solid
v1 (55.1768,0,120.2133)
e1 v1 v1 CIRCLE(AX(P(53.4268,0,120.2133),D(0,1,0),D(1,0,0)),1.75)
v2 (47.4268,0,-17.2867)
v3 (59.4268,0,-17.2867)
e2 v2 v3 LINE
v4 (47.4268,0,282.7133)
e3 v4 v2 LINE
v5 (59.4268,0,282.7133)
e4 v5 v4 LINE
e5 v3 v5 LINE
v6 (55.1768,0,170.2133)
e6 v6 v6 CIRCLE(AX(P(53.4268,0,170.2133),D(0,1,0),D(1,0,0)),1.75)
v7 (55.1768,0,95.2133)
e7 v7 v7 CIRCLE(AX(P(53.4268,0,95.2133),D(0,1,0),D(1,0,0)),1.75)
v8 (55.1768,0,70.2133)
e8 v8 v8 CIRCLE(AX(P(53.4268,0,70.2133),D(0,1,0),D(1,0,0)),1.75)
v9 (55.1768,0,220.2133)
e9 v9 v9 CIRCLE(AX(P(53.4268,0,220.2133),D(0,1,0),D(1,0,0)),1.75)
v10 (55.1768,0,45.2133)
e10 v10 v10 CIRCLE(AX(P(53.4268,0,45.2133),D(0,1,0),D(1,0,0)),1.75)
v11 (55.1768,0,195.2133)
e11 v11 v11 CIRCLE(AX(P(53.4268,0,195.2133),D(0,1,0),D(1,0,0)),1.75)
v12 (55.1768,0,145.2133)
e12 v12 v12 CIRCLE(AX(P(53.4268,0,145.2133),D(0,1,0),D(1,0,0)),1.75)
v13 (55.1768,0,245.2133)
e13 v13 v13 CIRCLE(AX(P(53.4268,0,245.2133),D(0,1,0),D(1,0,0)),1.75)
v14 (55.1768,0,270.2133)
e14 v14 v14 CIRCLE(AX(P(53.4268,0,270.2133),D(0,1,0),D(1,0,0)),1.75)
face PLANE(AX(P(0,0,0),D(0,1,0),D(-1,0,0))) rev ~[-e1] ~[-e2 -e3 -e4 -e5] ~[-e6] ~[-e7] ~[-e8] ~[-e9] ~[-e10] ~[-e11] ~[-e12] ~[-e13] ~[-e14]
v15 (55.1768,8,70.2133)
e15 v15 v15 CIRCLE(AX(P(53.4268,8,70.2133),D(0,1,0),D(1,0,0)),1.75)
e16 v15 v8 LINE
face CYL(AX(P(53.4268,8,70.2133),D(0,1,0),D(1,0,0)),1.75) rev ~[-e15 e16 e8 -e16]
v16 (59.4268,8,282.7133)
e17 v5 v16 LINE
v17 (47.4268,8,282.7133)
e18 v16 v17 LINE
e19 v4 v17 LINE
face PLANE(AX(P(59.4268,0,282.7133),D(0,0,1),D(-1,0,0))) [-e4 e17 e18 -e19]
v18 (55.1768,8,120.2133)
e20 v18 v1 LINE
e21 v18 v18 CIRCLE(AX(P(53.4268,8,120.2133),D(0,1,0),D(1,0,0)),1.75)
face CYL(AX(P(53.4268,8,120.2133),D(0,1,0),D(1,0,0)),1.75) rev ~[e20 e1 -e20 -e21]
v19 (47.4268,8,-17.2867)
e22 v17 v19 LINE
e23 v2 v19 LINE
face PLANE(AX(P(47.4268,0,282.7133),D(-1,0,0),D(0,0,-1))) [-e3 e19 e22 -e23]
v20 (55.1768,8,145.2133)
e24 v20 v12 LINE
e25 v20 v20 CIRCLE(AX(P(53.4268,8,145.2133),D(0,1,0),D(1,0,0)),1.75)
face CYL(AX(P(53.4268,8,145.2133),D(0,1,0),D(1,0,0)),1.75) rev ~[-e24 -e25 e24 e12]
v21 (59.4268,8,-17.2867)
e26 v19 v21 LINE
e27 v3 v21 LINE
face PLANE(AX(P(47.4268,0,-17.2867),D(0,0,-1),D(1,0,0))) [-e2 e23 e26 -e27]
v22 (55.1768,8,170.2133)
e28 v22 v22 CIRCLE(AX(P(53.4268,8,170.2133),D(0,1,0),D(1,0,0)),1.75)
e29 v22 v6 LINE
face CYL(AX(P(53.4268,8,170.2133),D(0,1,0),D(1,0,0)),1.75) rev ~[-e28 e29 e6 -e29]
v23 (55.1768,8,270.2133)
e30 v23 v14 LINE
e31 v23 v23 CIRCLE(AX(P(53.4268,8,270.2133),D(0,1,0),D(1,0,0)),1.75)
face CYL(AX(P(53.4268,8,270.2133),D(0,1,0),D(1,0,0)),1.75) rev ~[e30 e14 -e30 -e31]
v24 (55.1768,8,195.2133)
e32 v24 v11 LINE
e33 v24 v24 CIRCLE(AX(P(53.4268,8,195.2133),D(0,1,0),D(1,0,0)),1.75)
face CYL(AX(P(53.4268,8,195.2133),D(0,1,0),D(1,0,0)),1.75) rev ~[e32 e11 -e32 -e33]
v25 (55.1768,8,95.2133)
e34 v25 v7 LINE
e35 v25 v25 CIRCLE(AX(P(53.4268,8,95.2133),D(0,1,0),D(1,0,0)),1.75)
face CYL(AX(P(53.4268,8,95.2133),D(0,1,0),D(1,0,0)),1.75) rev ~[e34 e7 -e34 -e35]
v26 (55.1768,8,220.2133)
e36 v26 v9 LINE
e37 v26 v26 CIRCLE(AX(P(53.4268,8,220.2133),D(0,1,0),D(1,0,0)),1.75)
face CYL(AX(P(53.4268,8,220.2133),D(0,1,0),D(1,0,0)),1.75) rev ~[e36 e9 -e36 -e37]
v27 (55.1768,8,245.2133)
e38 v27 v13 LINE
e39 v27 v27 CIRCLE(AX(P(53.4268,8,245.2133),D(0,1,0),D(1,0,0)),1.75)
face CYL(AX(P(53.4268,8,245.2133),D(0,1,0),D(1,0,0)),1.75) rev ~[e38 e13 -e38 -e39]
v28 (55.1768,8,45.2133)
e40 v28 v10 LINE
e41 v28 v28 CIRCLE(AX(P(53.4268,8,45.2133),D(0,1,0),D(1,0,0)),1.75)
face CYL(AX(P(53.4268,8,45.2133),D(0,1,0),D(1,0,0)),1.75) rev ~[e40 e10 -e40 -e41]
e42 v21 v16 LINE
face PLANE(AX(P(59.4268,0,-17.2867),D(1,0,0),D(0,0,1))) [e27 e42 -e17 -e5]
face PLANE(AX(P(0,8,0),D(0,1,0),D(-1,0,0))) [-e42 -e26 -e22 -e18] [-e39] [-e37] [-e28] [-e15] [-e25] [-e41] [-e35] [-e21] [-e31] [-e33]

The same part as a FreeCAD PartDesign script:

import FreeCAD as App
import Part
import Sketcher


def add_polygon(sketch, points):
    """Adds a closed chain of lines whose ends are joined by coincident constraints."""
    first, n = sketch.GeometryCount, len(points)
    for a, b in zip(points, points[1:] + points[:1]):
        sketch.addGeometry(Part.LineSegment(App.Vector(*a, 0), App.Vector(*b, 0)), False)
    for i in range(n):
        sketch.addConstraint(Sketcher.Constraint("Coincident", first + i, 2, first + (i + 1) % n, 1))

doc = App.newDocument("Part")
body = doc.addObject("PartDesign::Body", "Body")

# Sketch on XZ plane
sketch1 = body.newObject("Sketcher::SketchObject", "Sketch")
sketch1.AttachmentSupport = (doc.getObject("XZ_Plane"), [""])
sketch1.MapMode = "FlatFace"
add_polygon(sketch1, [(59, -17), (47, -17), (47, 283), (59, 283)])  # lines 0-3
sketch1.addConstraint(Sketcher.Constraint("Horizontal", 0))
sketch1.addConstraint(Sketcher.Constraint("Vertical", 1))
sketch1.addConstraint(Sketcher.Constraint("Horizontal", 2))
sketch1.addConstraint(Sketcher.Constraint("Vertical", 3))
sketch1.addConstraint(Sketcher.Constraint("DistanceX", 0, 2, 0, 1, 12.0))
sketch1.addConstraint(Sketcher.Constraint("DistanceY", 1, 1, 1, 2, 300.0))
sketch1.addConstraint(Sketcher.Constraint("DistanceX", -1, 1, 0, 2, 47.4268))
sketch1.addConstraint(Sketcher.Constraint("DistanceY", 0, 2, -1, 1, 17.2867))
pad1 = body.newObject("PartDesign::Pad", "Pad")
pad1.Profile = sketch1
pad1.Length = 8
pad1.Reversed = True

# Sketch on XZ plane
sketch2 = body.newObject("Sketcher::SketchObject", "Sketch001")
sketch2.AttachmentSupport = (doc.getObject("XZ_Plane"), [""])
sketch2.MapMode = "FlatFace"
sketch2.AttachmentOffset = App.Placement(App.Vector(0, 0, -8), App.Rotation())
sketch2.addGeometry(Part.Circle(App.Vector(53.4, 270.2, 0), App.Vector(0, 0, 1), 1.8), False)
sketch2.addGeometry(Part.Circle(App.Vector(53.4, 245.2, 0), App.Vector(0, 0, 1), 1.8), False)
sketch2.addGeometry(Part.Circle(App.Vector(53.4, 220.2, 0), App.Vector(0, 0, 1), 1.8), False)
sketch2.addGeometry(Part.Circle(App.Vector(53.4, 195.2, 0), App.Vector(0, 0, 1), 1.8), False)
sketch2.addGeometry(Part.Circle(App.Vector(53.4, 170.2, 0), App.Vector(0, 0, 1), 1.8), False)
sketch2.addGeometry(Part.Circle(App.Vector(53.4, 145.2, 0), App.Vector(0, 0, 1), 1.8), False)
sketch2.addGeometry(Part.Circle(App.Vector(53.4, 120.2, 0), App.Vector(0, 0, 1), 1.8), False)
sketch2.addGeometry(Part.Circle(App.Vector(53.4, 95.2, 0), App.Vector(0, 0, 1), 1.8), False)
sketch2.addGeometry(Part.Circle(App.Vector(53.4, 70.2, 0), App.Vector(0, 0, 1), 1.8), False)
sketch2.addGeometry(Part.Circle(App.Vector(53.4, 45.2, 0), App.Vector(0, 0, 1), 1.8), False)
sketch2.addConstraint(Sketcher.Constraint("Equal", 0, 1))
sketch2.addConstraint(Sketcher.Constraint("Equal", 1, 2))
sketch2.addConstraint(Sketcher.Constraint("Equal", 2, 3))
sketch2.addConstraint(Sketcher.Constraint("Equal", 3, 4))
sketch2.addConstraint(Sketcher.Constraint("Equal", 4, 5))
sketch2.addConstraint(Sketcher.Constraint("Equal", 5, 6))
sketch2.addConstraint(Sketcher.Constraint("Equal", 6, 7))
sketch2.addConstraint(Sketcher.Constraint("Equal", 7, 8))
sketch2.addConstraint(Sketcher.Constraint("Equal", 8, 9))
sketch2.addConstraint(Sketcher.Constraint("Vertical", 0, 3, 1, 3))
sketch2.addConstraint(Sketcher.Constraint("Vertical", 1, 3, 2, 3))
sketch2.addConstraint(Sketcher.Constraint("Vertical", 2, 3, 3, 3))
sketch2.addConstraint(Sketcher.Constraint("Vertical", 3, 3, 4, 3))
sketch2.addConstraint(Sketcher.Constraint("Vertical", 4, 3, 5, 3))
sketch2.addConstraint(Sketcher.Constraint("Vertical", 5, 3, 6, 3))
sketch2.addConstraint(Sketcher.Constraint("Vertical", 6, 3, 7, 3))
sketch2.addConstraint(Sketcher.Constraint("Vertical", 7, 3, 8, 3))
sketch2.addConstraint(Sketcher.Constraint("Vertical", 8, 3, 9, 3))
sketch2.addConstraint(Sketcher.Constraint("Diameter", 0, 3.5))
sketch2.addConstraint(Sketcher.Constraint("DistanceY", 1, 3, 0, 3, 25.0))
sketch2.addConstraint(Sketcher.Constraint("DistanceY", 2, 3, 1, 3, 25.0))
sketch2.addConstraint(Sketcher.Constraint("DistanceY", 3, 3, 2, 3, 25.0))
sketch2.addConstraint(Sketcher.Constraint("DistanceY", 4, 3, 3, 3, 25.0))
sketch2.addConstraint(Sketcher.Constraint("DistanceY", 5, 3, 4, 3, 25.0))
sketch2.addConstraint(Sketcher.Constraint("DistanceY", 6, 3, 5, 3, 25.0))
sketch2.addConstraint(Sketcher.Constraint("DistanceY", 7, 3, 6, 3, 25.0))
sketch2.addConstraint(Sketcher.Constraint("DistanceY", 8, 3, 7, 3, 25.0))
sketch2.addConstraint(Sketcher.Constraint("DistanceY", 9, 3, 8, 3, 25.0))
sketch2.addConstraint(Sketcher.Constraint("DistanceX", -1, 1, 0, 3, 53.4268))
sketch2.addConstraint(Sketcher.Constraint("DistanceY", -1, 1, 0, 3, 270.2133))
pocket1 = body.newObject("PartDesign::Pocket", "Pocket")
pocket1.Profile = sketch2
pocket1.Type = "ThroughAll"
pocket1.Reversed = True

doc.recompute()
